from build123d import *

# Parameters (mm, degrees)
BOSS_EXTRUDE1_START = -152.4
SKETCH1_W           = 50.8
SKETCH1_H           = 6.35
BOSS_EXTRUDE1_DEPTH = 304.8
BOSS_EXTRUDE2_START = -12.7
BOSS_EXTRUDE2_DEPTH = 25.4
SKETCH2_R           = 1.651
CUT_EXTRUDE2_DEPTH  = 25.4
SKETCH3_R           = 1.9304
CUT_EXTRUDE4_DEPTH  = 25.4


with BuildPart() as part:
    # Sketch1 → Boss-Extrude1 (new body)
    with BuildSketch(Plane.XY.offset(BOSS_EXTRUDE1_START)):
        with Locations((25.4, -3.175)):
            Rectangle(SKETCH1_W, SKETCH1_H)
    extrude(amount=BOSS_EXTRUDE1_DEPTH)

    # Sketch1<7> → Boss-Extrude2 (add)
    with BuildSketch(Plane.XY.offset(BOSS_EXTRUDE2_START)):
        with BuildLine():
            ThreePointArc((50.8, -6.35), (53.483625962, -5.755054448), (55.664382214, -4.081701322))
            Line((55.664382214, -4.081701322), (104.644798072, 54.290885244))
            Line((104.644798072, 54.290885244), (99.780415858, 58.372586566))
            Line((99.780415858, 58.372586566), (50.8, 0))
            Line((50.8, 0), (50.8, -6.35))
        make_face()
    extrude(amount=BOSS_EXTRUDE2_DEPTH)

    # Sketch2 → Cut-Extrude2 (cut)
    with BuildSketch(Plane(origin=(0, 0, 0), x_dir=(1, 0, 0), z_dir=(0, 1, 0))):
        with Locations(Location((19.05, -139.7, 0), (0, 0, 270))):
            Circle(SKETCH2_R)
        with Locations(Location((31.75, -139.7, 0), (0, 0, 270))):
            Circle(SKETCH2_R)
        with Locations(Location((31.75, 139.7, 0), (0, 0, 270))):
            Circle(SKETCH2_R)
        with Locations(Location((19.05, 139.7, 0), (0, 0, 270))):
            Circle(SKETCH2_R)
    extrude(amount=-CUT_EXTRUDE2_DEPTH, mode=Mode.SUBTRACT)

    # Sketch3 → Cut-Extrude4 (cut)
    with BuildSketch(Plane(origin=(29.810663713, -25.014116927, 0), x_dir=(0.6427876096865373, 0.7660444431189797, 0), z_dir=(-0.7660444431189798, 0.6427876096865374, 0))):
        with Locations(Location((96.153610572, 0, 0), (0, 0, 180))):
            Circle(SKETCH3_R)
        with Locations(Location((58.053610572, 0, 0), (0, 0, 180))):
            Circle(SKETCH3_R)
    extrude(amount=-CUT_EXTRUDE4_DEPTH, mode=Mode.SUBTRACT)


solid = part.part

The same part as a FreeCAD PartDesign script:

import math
import FreeCAD as App
import Part
import Sketcher

V = App.Vector
Q = App.Units.Quantity

doc = App.newDocument("Part")
body = doc.addObject("PartDesign::Body", "Body")

# Sketch on XY plane
sketch1 = body.newObject("Sketcher::SketchObject", "Sketch")
sketch1.AttachmentSupport = (doc.getObject("XY_Plane"), [""])
sketch1.MapMode = "FlatFace"
sketch1.AttachmentOffset = App.Placement(V(0, 0, -6 * 25.4), App.Rotation())
sketch1.addGeometry(Part.LineSegment(V(0, 0, 0), V(0, -6, 0)), False)
sketch1.addGeometry(Part.LineSegment(V(0, -6, 0), V(51, -6, 0)), False)
sketch1.addGeometry(Part.LineSegment(V(51, -6, 0), V(51, 0, 0)), False)
sketch1.addGeometry(Part.LineSegment(V(51, 0, 0), V(0, 0, 0)), False)
sketch1.addConstraint(Sketcher.Constraint("Coincident", 0, 2, 1, 1))
sketch1.addConstraint(Sketcher.Constraint("Coincident", 1, 2, 2, 1))
sketch1.addConstraint(Sketcher.Constraint("Coincident", 2, 2, 3, 1))
sketch1.addConstraint(Sketcher.Constraint("Coincident", 3, 2, 0, 1))
sketch1.addConstraint(Sketcher.Constraint("Vertical", 0))
sketch1.addConstraint(Sketcher.Constraint("Horizontal", 1))
sketch1.addConstraint(Sketcher.Constraint("Vertical", 2))
sketch1.addConstraint(Sketcher.Constraint("Horizontal", 3))
sketch1.addConstraint(Sketcher.Constraint("Coincident", 3, 2, -1, 1))
sketch1.addConstraint(Sketcher.Constraint("DistanceX", 1, 1, 1, 2, Q("2 in")))
sketch1.addConstraint(Sketcher.Constraint("DistanceY", 0, 2, 0, 1, Q("0.25 in")))
pad1 = body.newObject("PartDesign::Pad", "Pad")
pad1.Profile = sketch1
pad1.Length = Q("12 in")

# Sketch on XY plane
sketch2 = body.newObject("Sketcher::SketchObject", "Sketch001")
sketch2.AttachmentSupport = (doc.getObject("XY_Plane"), [""])
sketch2.MapMode = "FlatFace"
sketch2.AttachmentOffset = App.Placement(V(0, 0, -0.5 * 25.4), App.Rotation())
sketch2.addGeometry(Part.ArcOfCircle(Part.Circle(V(51, 0, 0), V(0, 0, 1), 6), math.radians(-90), math.radians(-40)), False)
sketch2.addGeometry(Part.LineSegment(V(56, -4, 0), V(105, 54, 0)), False)
sketch2.addGeometry(Part.LineSegment(V(105, 54, 0), V(100, 58, 0)), False)
sketch2.addGeometry(Part.LineSegment(V(100, 58, 0), V(51, 0, 0)), False)
sketch2.addGeometry(Part.LineSegment(V(51, 0, 0), V(51, -6, 0)), False)
sketch2.addConstraint(Sketcher.Constraint("Tangent", 0, 2, 1, 1))
sketch2.addConstraint(Sketcher.Constraint("Coincident", 1, 2, 2, 1))
sketch2.addConstraint(Sketcher.Constraint("Coincident", 2, 2, 3, 1))
sketch2.addConstraint(Sketcher.Constraint("Coincident", 3, 2, 4, 1))
sketch2.addConstraint(Sketcher.Constraint("Coincident", 4, 2, 0, 1))
sketch2.addConstraint(Sketcher.Constraint("Vertical", 4))
sketch2.addConstraint(Sketcher.Constraint("Coincident", 3, 2, 0, 3))
sketch2.addConstraint(Sketcher.Constraint("PointOnObject", 0, 3, -1))
sketch2.addConstraint(Sketcher.Constraint("Perpendicular", 1, 2))
sketch2.addConstraint(Sketcher.Constraint("Perpendicular", 2, 3))
sketch2.addConstraint(Sketcher.Constraint("Radius", 0, Q("0.25 in")))
sketch2.addConstraint(Sketcher.Constraint("Distance", 1, Q("3 in")))
sketch2.addConstraint(Sketcher.Constraint("DistanceX", -1, 1, 0, 3, Q("2 in")))
sketch2.addConstraint(Sketcher.Constraint("Angle", 1, Q("50 deg")))
pad2 = body.newObject("PartDesign::Pad", "Pad001")
pad2.Profile = sketch2
pad2.Length = Q("1 in")

# Sketch on XZ plane
sketch3 = body.newObject("Sketcher::SketchObject", "Sketch002")
sketch3.AttachmentSupport = (doc.getObject("XZ_Plane"), [""])
sketch3.MapMode = "FlatFace"
sketch3.addGeometry(Part.Circle(V(19.1, 139.7, 0), V(0, 0, 1), 1.7), False)
sketch3.addGeometry(Part.Circle(V(31.8, 139.7, 0), V(0, 0, 1), 1.7), False)
sketch3.addGeometry(Part.Circle(V(31.8, -139.7, 0), V(0, 0, 1), 1.7), False)
sketch3.addGeometry(Part.Circle(V(19.1, -139.7, 0), V(0, 0, 1), 1.7), False)
sketch3.addConstraint(Sketcher.Constraint("Equal", 0, 1))
sketch3.addConstraint(Sketcher.Constraint("Equal", 1, 2))
sketch3.addConstraint(Sketcher.Constraint("Equal", 2, 3))
sketch3.addConstraint(Sketcher.Constraint("Symmetric", 1, 3, 2, 3, -1))
sketch3.addConstraint(Sketcher.Constraint("Symmetric", 0, 3, 3, 3, -1))
sketch3.addConstraint(Sketcher.Constraint("Horizontal", 0, 3, 1, 3))
sketch3.addConstraint(Sketcher.Constraint("Diameter", 0, Q("0.13 in")))
sketch3.addConstraint(Sketcher.Constraint("DistanceY", 2, 3, 1, 3, Q("11 in")))
sketch3.addConstraint(Sketcher.Constraint("DistanceX", 0, 3, 1, 3, Q("0.5 in")))
sketch3.addConstraint(Sketcher.Constraint("DistanceX", -1, 1, 0, 3, Q("0.75 in")))
pocket1 = body.newObject("PartDesign::Pocket", "Pocket")
pocket1.Profile = sketch3
pocket1.Length = Q("1 in")
pocket1.Reversed = True

# Sketch on an angled plane
sketch4 = body.newObject("Sketcher::SketchObject", "Sketch003")
sketch4.Placement = App.Placement(V(29.810664, -25.014117, 0), App.Rotation(V(0.64278761, 0.766044443, 0), V(0, 0, -1), V(-0.766044443, 0.64278761, 0), "ZXY"))
sketch4.addGeometry(Part.Circle(V(96.2, 0, 0), V(0, 0, 1), 1.9), False)
sketch4.addGeometry(Part.Circle(V(58.1, 0, 0), V(0, 0, 1), 1.9), False)
sketch4.addConstraint(Sketcher.Constraint("Equal", 0, 1))
sketch4.addConstraint(Sketcher.Constraint("PointOnObject", 0, 3, -1))
sketch4.addConstraint(Sketcher.Constraint("PointOnObject", 1, 3, -1))
sketch4.addConstraint(Sketcher.Constraint("Diameter", 0, Q("0.152 in")))
sketch4.addConstraint(Sketcher.Constraint("DistanceX", 1, 3, 0, 3, Q("1.5 in")))
sketch4.addConstraint(Sketcher.Constraint("DistanceX", -1, 1, 0, 3, Q("96.153611 mm")))
pocket2 = body.newObject("PartDesign::Pocket", "Pocket001")
pocket2.Profile = sketch4
pocket2.Length = Q("1 in")

doc.recompute()
